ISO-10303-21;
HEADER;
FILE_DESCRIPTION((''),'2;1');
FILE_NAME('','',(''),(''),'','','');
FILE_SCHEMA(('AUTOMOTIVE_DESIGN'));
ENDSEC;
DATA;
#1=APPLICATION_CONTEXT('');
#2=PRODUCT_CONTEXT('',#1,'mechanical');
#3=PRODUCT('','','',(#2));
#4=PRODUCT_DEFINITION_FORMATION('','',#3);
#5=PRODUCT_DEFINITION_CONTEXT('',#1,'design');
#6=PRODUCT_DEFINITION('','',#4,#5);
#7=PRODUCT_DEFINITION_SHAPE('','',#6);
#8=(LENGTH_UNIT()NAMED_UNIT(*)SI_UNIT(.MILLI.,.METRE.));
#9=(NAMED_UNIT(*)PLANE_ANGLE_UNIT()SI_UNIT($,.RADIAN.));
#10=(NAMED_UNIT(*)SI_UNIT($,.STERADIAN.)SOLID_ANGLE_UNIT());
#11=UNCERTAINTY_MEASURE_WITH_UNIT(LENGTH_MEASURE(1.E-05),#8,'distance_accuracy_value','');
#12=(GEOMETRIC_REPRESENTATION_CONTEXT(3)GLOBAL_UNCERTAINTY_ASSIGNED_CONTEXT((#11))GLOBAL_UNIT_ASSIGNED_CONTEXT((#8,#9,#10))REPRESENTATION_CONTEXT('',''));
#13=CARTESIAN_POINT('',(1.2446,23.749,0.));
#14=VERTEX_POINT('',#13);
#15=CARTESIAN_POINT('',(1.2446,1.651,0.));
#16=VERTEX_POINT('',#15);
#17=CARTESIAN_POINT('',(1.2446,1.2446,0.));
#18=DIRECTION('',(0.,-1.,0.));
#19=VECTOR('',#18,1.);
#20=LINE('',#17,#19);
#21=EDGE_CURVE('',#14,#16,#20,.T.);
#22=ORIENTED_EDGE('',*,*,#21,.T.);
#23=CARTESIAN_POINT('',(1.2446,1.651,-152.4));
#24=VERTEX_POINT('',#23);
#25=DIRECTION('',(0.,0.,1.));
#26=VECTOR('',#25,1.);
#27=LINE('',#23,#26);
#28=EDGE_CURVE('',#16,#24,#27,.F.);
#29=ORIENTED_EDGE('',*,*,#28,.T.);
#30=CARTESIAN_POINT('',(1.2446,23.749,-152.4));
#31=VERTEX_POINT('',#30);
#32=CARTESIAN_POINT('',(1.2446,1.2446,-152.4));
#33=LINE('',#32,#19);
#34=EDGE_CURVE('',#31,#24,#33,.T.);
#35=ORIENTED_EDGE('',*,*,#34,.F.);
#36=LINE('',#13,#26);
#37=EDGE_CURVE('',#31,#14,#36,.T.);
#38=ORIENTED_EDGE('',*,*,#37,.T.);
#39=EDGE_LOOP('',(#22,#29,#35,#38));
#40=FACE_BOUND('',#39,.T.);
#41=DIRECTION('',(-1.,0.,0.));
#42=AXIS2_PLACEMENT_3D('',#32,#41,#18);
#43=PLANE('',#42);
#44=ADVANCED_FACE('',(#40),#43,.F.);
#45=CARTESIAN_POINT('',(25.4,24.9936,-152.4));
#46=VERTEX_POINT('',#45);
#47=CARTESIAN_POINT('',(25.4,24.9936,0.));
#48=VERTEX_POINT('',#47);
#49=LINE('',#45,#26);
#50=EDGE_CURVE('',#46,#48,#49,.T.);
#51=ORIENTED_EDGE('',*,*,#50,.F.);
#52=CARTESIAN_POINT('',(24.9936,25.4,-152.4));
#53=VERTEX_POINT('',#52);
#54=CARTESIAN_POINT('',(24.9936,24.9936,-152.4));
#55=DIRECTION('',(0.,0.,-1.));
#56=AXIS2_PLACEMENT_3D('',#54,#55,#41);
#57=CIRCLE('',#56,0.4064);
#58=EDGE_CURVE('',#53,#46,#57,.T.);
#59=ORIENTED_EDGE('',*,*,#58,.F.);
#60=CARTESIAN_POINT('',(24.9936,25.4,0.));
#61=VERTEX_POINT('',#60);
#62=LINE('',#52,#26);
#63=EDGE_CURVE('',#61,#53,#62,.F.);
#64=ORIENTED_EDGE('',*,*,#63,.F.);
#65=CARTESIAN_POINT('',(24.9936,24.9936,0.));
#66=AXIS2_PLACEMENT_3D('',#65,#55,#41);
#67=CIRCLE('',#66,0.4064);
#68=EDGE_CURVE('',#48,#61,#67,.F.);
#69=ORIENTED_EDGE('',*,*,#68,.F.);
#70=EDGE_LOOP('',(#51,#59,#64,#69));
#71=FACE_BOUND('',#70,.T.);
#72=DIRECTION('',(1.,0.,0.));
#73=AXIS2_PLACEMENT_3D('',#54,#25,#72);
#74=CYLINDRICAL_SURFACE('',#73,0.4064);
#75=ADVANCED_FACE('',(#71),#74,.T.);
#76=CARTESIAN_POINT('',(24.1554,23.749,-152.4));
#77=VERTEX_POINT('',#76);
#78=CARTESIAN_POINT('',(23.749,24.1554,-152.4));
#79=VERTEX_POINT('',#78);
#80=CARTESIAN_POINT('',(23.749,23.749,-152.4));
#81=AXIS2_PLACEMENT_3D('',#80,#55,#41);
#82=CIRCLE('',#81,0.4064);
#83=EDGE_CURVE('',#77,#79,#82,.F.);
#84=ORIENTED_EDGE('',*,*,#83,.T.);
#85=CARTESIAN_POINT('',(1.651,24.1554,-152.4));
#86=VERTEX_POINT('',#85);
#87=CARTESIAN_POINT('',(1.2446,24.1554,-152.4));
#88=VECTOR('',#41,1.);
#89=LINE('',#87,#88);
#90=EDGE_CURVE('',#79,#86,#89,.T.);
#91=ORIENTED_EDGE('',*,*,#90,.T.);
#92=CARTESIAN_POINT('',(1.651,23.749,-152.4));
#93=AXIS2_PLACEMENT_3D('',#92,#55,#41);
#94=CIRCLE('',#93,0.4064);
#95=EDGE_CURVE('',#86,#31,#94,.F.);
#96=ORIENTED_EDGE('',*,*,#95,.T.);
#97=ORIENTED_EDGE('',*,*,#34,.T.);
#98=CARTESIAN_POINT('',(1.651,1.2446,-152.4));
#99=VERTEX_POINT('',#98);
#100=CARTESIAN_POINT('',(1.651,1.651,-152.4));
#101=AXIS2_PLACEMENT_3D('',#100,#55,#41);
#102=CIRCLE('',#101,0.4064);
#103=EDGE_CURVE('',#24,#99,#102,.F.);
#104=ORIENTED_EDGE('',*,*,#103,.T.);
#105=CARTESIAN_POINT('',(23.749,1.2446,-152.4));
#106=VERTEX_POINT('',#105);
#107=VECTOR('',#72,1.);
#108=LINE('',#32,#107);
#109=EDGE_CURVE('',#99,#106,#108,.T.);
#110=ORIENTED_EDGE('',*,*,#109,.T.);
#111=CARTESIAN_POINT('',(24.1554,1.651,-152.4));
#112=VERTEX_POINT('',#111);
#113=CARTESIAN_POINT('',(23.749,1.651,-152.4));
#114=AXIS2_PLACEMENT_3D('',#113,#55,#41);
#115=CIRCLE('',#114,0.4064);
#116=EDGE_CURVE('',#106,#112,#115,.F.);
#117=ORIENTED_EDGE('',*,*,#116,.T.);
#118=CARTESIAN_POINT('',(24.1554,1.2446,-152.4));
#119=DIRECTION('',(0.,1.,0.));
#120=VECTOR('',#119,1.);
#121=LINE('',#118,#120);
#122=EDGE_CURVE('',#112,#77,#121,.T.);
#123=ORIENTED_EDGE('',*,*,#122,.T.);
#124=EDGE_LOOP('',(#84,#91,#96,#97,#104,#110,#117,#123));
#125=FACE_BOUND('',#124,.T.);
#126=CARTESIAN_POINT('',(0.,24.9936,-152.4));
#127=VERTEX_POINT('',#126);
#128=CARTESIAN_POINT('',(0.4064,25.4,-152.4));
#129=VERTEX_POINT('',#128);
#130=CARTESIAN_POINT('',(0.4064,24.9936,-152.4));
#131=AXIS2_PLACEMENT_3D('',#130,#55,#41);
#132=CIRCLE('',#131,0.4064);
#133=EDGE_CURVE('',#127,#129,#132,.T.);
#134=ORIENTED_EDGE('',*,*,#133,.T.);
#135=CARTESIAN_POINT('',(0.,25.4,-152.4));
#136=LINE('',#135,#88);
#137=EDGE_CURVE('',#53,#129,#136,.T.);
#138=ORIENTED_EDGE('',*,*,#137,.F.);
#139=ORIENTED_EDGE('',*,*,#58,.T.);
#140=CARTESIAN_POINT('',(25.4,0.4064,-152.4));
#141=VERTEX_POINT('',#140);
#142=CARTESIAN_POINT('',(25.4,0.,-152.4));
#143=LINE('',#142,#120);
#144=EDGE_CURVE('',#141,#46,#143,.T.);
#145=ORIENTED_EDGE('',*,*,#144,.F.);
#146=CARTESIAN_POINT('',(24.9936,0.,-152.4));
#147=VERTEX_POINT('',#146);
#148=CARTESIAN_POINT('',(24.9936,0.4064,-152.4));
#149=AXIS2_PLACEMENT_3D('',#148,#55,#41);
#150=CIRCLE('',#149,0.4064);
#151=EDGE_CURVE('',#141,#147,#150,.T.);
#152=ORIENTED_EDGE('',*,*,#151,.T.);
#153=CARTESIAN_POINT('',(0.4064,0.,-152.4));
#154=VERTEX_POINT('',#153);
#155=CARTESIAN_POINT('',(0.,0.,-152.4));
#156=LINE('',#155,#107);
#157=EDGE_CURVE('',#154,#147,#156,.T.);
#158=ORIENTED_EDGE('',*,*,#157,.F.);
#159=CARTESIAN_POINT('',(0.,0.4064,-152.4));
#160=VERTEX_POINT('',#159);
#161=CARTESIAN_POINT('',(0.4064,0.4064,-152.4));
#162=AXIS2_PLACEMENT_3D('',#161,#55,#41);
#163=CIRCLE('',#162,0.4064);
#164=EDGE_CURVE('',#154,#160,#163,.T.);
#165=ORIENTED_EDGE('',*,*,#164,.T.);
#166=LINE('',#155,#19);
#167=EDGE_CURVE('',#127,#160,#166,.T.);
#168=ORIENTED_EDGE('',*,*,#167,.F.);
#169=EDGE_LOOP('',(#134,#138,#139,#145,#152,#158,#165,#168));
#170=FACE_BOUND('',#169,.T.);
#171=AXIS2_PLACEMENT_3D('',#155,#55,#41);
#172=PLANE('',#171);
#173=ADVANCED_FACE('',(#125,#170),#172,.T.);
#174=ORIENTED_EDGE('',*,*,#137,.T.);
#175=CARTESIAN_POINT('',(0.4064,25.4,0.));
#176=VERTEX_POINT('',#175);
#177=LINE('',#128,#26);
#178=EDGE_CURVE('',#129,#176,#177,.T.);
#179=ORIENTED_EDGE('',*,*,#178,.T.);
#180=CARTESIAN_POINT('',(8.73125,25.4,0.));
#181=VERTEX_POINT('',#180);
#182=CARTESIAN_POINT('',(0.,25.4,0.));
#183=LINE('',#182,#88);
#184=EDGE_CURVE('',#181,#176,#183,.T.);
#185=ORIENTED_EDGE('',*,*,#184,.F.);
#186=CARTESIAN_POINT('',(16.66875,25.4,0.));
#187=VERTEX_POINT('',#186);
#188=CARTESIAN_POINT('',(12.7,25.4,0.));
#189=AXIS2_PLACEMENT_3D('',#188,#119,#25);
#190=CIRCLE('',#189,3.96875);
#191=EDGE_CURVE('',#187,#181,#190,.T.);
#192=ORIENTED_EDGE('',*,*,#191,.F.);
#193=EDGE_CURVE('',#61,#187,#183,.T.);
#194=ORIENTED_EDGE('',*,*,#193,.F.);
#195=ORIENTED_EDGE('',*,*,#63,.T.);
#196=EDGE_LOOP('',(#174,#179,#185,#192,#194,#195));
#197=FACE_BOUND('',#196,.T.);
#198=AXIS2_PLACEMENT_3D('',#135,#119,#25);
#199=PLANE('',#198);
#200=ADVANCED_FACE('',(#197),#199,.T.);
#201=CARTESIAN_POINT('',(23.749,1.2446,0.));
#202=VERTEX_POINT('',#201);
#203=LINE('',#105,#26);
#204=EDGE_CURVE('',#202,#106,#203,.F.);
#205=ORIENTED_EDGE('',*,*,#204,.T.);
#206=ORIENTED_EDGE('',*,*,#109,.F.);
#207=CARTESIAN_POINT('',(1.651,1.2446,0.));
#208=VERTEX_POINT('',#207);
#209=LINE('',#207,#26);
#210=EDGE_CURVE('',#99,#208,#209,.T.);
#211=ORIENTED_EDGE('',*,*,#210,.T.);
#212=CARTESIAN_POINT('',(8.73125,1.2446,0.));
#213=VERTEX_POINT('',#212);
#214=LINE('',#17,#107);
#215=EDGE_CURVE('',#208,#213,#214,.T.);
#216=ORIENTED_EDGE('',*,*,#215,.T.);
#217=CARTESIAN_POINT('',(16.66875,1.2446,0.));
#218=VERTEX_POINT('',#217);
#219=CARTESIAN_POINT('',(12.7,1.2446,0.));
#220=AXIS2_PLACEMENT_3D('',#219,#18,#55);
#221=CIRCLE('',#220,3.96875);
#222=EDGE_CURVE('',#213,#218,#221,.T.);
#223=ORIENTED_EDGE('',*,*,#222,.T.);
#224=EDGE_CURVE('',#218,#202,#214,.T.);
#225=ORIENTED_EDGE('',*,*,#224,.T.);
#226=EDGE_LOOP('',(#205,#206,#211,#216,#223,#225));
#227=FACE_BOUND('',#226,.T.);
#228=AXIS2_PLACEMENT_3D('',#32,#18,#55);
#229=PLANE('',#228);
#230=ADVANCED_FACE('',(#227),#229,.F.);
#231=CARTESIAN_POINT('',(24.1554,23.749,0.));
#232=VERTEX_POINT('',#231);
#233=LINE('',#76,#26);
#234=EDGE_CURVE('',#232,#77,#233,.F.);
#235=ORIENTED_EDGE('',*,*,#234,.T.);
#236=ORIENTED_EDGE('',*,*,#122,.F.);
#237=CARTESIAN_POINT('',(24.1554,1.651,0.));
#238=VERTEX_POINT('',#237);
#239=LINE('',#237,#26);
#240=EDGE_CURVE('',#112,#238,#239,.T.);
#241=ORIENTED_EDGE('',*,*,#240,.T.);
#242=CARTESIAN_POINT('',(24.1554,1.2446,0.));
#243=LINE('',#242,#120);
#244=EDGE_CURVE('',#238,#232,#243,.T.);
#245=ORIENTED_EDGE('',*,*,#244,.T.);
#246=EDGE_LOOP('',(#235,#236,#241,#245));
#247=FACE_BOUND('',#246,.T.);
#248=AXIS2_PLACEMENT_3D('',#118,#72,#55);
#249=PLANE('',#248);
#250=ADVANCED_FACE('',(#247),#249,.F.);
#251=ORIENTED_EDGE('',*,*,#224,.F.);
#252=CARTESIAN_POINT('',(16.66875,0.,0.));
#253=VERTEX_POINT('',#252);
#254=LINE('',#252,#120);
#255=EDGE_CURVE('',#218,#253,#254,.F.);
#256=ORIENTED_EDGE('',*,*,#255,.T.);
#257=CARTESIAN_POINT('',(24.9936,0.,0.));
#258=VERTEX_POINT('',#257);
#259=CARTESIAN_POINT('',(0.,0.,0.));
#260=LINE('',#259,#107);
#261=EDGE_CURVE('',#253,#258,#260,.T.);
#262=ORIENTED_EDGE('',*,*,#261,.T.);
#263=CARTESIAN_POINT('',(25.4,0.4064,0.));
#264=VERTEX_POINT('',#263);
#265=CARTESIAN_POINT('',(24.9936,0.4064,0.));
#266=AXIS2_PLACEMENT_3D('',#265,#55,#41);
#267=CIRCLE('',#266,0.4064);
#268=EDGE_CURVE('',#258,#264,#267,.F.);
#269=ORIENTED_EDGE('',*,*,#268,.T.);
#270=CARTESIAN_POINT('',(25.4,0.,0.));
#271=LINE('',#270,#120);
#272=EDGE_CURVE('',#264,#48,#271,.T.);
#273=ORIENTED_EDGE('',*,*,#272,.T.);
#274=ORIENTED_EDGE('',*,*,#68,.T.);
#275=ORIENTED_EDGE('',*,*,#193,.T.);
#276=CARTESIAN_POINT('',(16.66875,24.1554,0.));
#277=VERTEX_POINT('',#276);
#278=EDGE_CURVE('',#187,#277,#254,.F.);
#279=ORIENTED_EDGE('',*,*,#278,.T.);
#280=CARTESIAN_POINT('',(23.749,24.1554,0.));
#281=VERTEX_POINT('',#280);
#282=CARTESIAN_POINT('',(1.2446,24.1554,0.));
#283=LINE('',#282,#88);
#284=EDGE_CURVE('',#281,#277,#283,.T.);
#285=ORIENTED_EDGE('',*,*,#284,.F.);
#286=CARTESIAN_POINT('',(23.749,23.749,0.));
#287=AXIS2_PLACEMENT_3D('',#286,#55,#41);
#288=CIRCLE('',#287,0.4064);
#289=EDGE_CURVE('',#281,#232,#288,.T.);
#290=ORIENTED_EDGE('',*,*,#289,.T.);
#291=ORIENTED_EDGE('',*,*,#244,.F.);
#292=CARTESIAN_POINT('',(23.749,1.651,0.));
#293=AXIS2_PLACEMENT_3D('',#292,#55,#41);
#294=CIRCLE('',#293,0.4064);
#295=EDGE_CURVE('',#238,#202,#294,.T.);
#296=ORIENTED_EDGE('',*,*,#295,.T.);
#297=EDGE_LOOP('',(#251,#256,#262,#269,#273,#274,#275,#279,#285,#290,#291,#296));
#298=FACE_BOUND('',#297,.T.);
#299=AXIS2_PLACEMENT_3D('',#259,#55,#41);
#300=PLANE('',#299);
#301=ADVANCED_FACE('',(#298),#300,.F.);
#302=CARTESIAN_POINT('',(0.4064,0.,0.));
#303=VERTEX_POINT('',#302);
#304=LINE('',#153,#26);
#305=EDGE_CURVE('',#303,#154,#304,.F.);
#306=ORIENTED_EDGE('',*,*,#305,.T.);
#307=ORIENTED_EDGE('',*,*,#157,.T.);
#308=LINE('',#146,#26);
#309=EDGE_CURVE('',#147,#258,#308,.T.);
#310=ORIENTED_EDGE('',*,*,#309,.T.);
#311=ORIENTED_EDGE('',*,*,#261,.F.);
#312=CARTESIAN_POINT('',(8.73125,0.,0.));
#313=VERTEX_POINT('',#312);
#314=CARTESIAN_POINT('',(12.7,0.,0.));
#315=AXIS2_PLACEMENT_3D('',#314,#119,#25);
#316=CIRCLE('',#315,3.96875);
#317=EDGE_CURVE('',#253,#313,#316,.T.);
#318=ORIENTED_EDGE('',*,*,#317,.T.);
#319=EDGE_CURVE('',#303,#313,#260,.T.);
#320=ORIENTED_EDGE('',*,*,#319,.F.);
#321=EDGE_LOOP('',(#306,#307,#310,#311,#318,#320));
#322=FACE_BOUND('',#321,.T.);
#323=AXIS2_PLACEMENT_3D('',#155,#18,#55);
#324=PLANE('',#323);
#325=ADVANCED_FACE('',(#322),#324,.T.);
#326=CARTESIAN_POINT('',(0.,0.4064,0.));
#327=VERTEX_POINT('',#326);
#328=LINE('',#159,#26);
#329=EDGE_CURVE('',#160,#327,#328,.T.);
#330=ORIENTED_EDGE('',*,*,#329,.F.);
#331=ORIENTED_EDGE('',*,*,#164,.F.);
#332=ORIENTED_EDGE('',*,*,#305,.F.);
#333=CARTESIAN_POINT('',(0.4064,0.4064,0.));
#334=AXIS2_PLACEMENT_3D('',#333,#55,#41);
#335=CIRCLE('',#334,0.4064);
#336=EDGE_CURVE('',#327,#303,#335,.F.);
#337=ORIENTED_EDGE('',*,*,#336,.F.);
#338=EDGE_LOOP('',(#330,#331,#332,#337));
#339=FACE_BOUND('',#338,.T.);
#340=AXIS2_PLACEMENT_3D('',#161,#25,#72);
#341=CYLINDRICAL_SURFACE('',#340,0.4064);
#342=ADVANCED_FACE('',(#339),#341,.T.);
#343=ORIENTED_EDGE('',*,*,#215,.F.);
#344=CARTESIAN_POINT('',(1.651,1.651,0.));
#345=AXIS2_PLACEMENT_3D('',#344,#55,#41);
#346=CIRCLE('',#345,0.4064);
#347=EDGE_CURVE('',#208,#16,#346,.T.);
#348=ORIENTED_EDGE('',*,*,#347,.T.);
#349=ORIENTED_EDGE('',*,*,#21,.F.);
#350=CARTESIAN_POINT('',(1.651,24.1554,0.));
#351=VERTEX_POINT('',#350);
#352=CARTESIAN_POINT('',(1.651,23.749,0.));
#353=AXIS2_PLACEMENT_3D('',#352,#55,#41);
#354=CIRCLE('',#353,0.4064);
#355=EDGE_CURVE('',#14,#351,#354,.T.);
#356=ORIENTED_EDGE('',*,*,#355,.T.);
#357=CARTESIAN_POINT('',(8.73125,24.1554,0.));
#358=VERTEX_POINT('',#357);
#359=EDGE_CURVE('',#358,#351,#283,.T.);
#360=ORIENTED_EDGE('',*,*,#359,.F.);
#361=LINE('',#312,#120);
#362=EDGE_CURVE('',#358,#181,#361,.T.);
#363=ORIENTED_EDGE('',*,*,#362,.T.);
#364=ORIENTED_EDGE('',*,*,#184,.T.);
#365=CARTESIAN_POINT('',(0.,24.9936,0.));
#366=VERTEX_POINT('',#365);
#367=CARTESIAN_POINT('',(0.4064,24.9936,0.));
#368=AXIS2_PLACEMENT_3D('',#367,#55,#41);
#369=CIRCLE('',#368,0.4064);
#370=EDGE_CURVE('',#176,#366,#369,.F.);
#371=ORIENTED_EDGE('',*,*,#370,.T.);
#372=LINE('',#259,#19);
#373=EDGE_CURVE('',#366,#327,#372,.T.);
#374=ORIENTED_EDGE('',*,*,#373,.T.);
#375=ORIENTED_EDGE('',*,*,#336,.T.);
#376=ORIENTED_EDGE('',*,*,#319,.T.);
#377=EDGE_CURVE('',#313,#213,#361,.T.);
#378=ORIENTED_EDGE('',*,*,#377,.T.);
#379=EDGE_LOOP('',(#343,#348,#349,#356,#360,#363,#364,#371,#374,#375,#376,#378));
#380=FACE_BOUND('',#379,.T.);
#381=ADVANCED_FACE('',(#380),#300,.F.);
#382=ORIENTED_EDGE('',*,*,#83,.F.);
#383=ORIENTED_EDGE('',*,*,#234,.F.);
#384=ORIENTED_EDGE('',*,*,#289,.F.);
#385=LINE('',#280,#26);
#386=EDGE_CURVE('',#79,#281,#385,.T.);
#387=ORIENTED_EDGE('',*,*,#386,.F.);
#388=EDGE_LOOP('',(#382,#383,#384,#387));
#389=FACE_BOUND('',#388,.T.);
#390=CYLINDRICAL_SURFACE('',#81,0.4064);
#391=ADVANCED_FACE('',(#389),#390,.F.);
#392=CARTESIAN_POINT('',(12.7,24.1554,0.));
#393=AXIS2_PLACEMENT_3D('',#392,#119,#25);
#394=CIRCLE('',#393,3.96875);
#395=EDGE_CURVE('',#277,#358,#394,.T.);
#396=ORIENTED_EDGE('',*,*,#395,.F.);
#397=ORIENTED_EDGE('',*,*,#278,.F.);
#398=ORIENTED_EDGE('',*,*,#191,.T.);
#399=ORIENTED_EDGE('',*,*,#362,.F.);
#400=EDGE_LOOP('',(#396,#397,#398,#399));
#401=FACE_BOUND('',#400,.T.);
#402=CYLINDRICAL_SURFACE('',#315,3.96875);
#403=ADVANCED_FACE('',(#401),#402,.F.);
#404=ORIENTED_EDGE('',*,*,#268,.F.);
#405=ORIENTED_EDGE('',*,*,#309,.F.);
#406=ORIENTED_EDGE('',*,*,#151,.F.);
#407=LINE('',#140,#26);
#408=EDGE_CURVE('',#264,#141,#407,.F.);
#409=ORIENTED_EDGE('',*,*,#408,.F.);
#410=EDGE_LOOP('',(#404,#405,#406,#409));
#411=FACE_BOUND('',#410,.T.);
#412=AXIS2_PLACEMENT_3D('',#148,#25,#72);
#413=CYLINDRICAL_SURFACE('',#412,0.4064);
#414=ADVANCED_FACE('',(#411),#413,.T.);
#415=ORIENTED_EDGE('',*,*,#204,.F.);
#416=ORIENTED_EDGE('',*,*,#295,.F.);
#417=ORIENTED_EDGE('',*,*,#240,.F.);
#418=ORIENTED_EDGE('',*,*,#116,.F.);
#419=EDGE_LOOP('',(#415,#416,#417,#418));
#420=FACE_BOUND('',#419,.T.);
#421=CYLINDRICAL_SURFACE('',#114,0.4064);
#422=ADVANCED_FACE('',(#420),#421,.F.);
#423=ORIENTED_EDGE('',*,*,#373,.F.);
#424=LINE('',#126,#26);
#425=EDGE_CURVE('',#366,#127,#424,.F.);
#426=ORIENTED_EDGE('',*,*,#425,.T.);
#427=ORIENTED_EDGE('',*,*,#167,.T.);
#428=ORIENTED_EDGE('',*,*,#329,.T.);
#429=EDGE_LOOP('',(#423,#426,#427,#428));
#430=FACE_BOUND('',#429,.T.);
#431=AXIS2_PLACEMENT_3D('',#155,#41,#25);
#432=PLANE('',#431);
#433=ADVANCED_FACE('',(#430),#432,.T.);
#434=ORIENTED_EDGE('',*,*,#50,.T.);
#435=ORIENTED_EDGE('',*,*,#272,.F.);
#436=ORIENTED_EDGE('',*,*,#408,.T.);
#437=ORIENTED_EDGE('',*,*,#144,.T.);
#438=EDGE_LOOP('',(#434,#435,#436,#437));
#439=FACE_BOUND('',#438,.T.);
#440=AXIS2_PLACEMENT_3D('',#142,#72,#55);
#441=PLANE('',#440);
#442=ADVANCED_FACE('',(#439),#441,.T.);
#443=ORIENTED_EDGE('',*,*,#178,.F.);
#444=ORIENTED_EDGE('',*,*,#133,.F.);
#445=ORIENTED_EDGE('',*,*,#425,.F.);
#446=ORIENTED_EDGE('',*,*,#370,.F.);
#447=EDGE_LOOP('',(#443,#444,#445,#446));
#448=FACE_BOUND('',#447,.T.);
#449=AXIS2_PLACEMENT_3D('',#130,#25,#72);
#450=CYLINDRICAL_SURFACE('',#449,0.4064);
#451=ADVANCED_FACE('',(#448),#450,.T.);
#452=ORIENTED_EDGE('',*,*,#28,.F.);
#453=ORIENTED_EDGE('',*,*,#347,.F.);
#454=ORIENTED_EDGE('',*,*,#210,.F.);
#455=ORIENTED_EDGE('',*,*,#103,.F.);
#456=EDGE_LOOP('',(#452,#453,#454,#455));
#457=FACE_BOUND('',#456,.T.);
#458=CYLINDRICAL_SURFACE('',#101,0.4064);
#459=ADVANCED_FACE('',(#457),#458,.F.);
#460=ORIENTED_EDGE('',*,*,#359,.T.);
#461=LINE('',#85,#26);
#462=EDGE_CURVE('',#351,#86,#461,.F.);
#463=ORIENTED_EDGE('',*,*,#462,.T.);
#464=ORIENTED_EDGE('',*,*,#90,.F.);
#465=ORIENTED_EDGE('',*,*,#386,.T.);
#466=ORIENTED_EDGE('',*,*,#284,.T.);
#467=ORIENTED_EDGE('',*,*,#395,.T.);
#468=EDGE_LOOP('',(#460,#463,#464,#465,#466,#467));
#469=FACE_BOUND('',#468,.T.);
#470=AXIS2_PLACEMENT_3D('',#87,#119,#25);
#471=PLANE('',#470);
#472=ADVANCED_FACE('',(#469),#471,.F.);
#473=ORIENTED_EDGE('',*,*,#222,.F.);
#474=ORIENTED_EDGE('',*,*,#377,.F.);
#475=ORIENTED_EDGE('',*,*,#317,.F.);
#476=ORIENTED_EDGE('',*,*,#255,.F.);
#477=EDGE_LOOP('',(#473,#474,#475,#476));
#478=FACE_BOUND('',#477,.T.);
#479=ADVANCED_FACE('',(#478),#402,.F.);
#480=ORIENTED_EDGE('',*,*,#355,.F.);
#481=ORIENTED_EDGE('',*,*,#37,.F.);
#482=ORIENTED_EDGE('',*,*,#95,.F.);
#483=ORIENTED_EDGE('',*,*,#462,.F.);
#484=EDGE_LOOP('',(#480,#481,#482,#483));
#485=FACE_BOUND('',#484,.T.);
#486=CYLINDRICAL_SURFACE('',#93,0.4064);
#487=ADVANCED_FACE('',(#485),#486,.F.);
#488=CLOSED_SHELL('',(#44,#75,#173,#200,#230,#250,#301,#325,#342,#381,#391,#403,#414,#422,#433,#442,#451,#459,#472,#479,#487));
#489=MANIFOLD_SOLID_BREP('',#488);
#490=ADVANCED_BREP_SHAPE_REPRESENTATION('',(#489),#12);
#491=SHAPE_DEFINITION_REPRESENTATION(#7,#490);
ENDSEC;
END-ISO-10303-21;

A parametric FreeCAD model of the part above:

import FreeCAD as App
import Part
import Sketcher
from FreeCAD import Vector
Q = App.Units.Quantity


def edges_at(feature, points):
    """Names of the edges that pass closest to the given points."""
    edges = feature.Shape.Edges
    near = lambda p: min(range(len(edges)), key=lambda i: edges[i].distToShape(Part.Vertex(*p))[0])
    return sorted({f"Edge{near(p) + 1}" for p in points})


def add_polygon(sketch, points):
    """Adds a closed chain of lines whose ends are joined by coincident constraints."""
    first, n = sketch.GeometryCount, len(points)
    for a, b in zip(points, points[1:] + points[:1]):
        sketch.addGeometry(Part.LineSegment(App.Vector(*a, 0), App.Vector(*b, 0)), False)
    for i in range(n):
        sketch.addConstraint(Sketcher.Constraint("Coincident", first + i, 2, first + (i + 1) % n, 1))

doc = App.newDocument("Part")
body = doc.addObject("PartDesign::Body", "Body")

sketch1 = body.newObject("Sketcher::SketchObject", "Sketch")
sketch1.AttachmentSupport = (doc.getObject("XY_Plane"), [""])
sketch1.MapMode = "FlatFace"
add_polygon(sketch1, [(0, 25), (0, 0), (25, 0), (25, 25)])
add_polygon(sketch1, [(24, 1), (1, 1), (1, 24), (24, 24)])
sketch1.addConstraint(Sketcher.Constraint("Vertical", 0))
sketch1.addConstraint(Sketcher.Constraint("Horizontal", 1))
sketch1.addConstraint(Sketcher.Constraint("Vertical", 2))
sketch1.addConstraint(Sketcher.Constraint("Horizontal", 3))
sketch1.addConstraint(Sketcher.Constraint("Horizontal", 4))
sketch1.addConstraint(Sketcher.Constraint("Vertical", 5))
sketch1.addConstraint(Sketcher.Constraint("Horizontal", 6))
sketch1.addConstraint(Sketcher.Constraint("Vertical", 7))
sketch1.addConstraint(Sketcher.Constraint("Coincident", 0, 2, -1, 1))
sketch1.addConstraint(Sketcher.Constraint("Equal", 3, 0))
sketch1.addConstraint(Sketcher.Constraint("Equal", 6, 5))
sketch1.addConstraint(Sketcher.Constraint("DistanceX", 1, 1, 1, 2, Q("1 in")))
sketch1.addConstraint(Sketcher.Constraint("DistanceX", 4, 2, 4, 1, Q("0.902 in")))
sketch1.addConstraint(Sketcher.Constraint("DistanceX", -1, 1, 4, 2, Q("0.049 in")))
sketch1.addConstraint(Sketcher.Constraint("DistanceY", -1, 1, 4, 2, Q("0.049 in")))
pad1 = body.newObject("PartDesign::Pad", "Pad")
pad1.Profile = sketch1
pad1.Length = Q("6 in")
pad1.Reversed = True
doc.recompute()

fillet = body.newObject("PartDesign::Fillet", "Fillet")
fillet.Base = (pad1, edges_at(pad1, [
    (0, 25.4, -76.2),
    (25.4, 25.4, -76.2),
    (25.4, 0, -76.2),
    (0, 0, -76.2),
]))
fillet.Radius = Q("0.016 in")
doc.recompute()

fillet2 = body.newObject("PartDesign::Fillet", "Fillet001")
fillet2.Base = (fillet, edges_at(fillet, [
    (1.245, 1.245, -76.2),
    (1.245, 24.155, -76.2),
    (24.155, 24.155, -76.2),
    (24.155, 1.245, -76.2),
]))
fillet2.Radius = Q("0.016 in")

sketch2 = body.newObject("Sketcher::SketchObject", "Sketch001")
sketch2.AttachmentSupport = (doc.getObject("XZ_Plane"), [""])
sketch2.MapMode = "FlatFace"
sketch2.AttachmentOffset = App.Placement(Vector(0, 0, -1 * 25.4), App.Rotation())
sketch2.addGeometry(Part.Circle(Vector(12.7, 0, 0), Vector(0, 0, 1), 4), False)
sketch2.addConstraint(Sketcher.Constraint("PointOnObject", 0, 3, -1))
sketch2.addConstraint(Sketcher.Constraint("Diameter", 0, Q("0.3125 in")))
sketch2.addConstraint(Sketcher.Constraint("DistanceX", -1, 1, 0, 3, Q("0.5 in")))
pocket1 = body.newObject("PartDesign::Pocket", "Pocket")
pocket1.Profile = sketch2
pocket1.Type = "ThroughAll"
pocket1.Reversed = True

doc.recompute()
